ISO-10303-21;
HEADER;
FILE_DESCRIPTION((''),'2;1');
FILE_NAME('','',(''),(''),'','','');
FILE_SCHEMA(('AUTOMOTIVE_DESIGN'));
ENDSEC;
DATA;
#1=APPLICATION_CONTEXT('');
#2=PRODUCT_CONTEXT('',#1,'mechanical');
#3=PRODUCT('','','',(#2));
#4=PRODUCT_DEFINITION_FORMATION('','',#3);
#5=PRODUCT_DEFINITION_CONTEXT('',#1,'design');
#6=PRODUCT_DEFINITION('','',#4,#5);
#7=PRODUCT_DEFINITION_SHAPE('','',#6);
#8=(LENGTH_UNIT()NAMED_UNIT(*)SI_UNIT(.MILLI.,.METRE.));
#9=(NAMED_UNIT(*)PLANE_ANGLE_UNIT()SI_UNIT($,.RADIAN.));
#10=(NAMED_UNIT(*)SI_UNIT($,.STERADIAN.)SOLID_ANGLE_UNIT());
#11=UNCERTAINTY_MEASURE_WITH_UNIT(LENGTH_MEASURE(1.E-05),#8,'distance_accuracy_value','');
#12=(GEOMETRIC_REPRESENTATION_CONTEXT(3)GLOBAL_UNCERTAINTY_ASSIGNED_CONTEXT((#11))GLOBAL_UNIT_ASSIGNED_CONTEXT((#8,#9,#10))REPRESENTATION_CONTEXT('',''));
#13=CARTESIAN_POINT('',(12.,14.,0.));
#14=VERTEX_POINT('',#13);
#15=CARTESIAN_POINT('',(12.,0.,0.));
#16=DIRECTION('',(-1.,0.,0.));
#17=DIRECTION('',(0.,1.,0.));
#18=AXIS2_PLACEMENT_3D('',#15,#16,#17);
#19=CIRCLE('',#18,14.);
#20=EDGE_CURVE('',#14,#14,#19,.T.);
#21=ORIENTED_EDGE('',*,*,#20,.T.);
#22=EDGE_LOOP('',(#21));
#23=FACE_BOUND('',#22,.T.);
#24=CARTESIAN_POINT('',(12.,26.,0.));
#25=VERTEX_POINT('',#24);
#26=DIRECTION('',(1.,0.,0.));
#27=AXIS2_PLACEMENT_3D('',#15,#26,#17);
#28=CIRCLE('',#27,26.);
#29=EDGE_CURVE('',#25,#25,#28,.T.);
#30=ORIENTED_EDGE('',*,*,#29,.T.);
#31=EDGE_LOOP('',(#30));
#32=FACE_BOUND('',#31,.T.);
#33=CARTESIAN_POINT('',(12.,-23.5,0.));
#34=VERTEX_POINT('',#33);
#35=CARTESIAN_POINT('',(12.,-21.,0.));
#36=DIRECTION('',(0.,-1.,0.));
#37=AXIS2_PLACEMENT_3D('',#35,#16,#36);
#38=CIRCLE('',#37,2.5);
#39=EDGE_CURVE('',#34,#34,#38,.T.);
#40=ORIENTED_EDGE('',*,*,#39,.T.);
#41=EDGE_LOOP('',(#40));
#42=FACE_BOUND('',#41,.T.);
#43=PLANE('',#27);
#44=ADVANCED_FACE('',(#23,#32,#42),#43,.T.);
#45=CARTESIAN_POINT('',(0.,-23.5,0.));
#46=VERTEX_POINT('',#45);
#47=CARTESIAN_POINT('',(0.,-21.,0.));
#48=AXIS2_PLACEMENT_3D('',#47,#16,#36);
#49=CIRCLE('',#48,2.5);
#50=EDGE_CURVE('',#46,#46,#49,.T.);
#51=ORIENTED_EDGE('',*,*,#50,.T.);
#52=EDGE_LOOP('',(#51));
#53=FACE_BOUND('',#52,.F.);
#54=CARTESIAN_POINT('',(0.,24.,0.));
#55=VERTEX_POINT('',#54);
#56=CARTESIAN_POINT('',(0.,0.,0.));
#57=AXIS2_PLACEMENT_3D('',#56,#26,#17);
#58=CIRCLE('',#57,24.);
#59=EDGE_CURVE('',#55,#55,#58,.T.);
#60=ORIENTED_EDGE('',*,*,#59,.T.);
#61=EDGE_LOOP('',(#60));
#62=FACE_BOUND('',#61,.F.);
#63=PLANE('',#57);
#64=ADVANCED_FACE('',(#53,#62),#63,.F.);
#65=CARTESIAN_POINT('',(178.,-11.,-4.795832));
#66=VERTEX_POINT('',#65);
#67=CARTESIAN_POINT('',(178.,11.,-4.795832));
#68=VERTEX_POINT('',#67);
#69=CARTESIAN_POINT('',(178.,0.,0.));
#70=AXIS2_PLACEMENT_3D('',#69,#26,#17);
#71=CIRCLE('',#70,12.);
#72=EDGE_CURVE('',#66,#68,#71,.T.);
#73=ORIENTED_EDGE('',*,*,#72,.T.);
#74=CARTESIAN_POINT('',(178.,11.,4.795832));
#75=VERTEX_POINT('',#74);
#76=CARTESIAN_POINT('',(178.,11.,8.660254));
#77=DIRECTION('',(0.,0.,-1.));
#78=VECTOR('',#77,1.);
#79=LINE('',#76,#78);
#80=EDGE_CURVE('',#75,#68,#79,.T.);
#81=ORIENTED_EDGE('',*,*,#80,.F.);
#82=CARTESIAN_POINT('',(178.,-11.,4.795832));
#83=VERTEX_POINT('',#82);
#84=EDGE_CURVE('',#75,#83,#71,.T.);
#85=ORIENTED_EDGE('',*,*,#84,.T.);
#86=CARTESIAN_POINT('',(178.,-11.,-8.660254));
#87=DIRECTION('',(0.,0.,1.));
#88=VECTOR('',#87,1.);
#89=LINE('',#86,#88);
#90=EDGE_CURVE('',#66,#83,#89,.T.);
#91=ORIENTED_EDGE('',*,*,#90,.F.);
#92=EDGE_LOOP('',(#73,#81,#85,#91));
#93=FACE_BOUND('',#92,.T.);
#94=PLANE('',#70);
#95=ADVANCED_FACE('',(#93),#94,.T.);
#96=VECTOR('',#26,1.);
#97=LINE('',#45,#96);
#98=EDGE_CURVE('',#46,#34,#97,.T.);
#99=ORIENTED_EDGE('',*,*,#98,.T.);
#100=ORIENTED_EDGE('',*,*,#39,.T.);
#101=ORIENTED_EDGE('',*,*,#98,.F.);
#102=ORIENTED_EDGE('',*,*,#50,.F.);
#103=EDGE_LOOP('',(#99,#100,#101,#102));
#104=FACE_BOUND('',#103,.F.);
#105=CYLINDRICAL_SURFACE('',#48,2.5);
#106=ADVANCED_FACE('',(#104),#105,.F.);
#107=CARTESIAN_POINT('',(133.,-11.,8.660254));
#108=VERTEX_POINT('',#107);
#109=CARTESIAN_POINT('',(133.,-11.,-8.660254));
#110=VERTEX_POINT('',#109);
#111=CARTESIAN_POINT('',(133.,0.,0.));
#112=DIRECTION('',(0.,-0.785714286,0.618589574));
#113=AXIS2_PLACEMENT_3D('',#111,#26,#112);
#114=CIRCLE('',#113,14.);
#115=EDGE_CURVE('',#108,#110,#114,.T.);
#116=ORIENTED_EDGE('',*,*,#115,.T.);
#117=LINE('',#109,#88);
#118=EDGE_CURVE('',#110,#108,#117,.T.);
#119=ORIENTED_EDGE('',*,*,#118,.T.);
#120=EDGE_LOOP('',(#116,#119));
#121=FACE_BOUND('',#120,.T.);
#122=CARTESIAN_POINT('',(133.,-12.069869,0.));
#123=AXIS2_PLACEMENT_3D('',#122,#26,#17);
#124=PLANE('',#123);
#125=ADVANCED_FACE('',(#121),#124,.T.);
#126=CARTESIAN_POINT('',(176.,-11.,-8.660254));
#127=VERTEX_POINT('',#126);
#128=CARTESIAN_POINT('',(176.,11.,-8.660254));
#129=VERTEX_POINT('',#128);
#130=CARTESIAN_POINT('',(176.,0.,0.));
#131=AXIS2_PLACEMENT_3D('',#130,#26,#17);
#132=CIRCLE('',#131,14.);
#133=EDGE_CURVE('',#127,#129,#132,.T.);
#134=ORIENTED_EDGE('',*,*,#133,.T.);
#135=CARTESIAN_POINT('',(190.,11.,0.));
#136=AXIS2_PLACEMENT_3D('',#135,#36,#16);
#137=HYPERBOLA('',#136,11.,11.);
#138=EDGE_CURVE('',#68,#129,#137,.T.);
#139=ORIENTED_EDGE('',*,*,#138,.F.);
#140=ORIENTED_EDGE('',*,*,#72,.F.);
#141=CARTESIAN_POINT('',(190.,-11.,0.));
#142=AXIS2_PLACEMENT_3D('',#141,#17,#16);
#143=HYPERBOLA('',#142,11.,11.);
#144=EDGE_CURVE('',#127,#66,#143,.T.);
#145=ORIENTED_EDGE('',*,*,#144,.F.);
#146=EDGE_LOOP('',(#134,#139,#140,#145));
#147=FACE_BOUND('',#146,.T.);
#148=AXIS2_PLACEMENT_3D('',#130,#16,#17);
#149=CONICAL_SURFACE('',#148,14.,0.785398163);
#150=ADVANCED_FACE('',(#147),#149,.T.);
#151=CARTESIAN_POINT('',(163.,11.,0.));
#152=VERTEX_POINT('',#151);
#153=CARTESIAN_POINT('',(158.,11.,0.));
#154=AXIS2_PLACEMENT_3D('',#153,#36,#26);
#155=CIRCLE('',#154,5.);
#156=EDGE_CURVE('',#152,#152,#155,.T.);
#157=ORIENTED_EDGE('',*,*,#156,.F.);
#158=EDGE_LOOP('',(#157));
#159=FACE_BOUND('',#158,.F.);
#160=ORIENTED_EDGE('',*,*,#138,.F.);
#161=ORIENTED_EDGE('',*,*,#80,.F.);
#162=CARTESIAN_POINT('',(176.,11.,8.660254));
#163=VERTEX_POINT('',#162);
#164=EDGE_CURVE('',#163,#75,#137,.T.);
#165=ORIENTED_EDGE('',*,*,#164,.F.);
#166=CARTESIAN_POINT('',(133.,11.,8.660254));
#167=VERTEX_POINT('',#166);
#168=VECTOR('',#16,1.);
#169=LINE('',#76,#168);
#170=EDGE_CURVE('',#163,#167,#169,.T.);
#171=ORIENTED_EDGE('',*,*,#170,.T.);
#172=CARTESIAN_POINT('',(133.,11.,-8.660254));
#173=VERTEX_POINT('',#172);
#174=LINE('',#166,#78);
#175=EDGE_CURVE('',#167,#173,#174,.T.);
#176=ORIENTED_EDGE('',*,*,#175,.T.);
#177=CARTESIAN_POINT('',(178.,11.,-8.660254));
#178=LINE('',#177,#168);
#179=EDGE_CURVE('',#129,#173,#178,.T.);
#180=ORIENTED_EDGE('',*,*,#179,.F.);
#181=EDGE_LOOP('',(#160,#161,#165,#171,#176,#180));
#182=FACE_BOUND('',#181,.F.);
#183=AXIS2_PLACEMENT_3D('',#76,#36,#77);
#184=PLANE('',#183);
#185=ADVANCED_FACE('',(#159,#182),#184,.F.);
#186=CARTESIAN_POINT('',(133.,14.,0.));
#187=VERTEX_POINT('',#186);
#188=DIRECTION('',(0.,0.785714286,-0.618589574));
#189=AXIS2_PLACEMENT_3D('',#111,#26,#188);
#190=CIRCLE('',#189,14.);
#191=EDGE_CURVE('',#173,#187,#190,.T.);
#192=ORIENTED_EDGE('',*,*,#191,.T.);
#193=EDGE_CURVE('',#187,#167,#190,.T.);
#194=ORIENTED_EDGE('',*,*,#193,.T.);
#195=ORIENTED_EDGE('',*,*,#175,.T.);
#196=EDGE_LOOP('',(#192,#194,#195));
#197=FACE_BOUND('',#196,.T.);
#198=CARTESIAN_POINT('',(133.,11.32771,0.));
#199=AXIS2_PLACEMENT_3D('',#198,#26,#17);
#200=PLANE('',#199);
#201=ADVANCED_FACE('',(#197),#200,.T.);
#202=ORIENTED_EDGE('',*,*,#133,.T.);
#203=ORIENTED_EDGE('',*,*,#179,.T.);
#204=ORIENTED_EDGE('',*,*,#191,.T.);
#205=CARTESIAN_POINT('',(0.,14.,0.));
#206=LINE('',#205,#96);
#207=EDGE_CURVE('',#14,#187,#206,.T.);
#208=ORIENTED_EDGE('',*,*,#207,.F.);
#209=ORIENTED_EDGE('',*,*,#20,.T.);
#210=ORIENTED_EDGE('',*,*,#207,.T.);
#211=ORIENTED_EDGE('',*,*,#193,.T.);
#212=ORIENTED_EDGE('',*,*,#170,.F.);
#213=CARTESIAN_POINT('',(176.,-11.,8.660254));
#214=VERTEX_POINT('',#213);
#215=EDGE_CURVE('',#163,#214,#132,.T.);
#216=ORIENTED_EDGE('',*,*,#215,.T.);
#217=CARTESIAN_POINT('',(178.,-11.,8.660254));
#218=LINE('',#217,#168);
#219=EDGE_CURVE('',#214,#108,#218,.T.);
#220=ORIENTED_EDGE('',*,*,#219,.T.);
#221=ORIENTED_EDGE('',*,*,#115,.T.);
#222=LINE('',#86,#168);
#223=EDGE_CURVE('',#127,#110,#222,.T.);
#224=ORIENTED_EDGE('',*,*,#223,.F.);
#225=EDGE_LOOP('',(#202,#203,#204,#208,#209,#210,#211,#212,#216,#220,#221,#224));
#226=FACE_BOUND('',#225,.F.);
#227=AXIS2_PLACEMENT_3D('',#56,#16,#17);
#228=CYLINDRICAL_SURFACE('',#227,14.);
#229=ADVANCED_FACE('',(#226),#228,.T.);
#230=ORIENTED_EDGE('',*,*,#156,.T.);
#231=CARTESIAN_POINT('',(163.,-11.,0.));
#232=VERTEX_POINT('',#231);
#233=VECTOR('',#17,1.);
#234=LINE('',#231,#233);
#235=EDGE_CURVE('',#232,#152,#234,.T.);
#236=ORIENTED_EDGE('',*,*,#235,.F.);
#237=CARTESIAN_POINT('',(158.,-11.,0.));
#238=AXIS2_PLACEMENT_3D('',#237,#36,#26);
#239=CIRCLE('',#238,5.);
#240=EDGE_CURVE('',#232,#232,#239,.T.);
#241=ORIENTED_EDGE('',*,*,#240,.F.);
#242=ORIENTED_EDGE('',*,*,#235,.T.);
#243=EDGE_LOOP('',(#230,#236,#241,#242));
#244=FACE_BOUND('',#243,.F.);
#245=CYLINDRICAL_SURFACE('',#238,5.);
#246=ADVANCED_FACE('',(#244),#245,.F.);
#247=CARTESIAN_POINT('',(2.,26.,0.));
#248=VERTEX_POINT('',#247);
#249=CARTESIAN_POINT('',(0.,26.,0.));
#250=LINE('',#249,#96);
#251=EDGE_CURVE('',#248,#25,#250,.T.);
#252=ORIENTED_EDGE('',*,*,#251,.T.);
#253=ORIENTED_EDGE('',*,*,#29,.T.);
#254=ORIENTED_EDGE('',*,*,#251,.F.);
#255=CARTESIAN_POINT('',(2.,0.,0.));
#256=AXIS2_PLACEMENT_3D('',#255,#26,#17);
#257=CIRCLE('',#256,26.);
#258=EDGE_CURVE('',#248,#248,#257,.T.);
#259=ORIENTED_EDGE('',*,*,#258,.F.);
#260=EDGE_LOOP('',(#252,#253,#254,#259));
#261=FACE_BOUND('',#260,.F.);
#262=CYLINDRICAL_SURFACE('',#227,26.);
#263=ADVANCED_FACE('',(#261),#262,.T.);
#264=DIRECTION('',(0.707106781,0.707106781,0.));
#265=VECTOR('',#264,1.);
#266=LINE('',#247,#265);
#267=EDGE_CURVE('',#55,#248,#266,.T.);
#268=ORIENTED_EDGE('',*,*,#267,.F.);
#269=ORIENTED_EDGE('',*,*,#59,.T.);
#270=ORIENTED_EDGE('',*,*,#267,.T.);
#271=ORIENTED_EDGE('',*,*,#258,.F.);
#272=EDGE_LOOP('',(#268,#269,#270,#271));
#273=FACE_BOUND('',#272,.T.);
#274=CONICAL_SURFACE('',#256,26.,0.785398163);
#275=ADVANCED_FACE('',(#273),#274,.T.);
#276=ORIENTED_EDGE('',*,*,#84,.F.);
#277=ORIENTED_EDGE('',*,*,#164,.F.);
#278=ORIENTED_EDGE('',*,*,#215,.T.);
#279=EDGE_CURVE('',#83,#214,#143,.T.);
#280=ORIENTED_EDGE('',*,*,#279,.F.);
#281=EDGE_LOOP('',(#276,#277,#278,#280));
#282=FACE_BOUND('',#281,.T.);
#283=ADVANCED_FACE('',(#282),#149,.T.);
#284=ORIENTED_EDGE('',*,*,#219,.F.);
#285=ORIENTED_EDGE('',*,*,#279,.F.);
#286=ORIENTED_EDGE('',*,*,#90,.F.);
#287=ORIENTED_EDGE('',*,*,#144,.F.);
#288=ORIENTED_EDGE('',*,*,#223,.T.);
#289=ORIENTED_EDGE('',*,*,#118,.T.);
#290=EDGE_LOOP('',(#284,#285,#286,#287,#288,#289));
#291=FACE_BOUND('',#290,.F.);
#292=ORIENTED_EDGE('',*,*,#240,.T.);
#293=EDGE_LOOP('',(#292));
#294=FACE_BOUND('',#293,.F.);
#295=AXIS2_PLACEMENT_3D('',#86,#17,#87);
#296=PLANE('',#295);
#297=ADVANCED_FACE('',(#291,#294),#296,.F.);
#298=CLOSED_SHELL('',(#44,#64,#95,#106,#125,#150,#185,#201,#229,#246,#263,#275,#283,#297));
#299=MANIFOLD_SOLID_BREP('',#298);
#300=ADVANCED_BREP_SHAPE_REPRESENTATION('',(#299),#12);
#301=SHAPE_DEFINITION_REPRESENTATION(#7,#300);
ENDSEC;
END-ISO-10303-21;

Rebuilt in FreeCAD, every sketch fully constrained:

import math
import FreeCAD as App
import Part
import Sketcher
from FreeCAD import Vector
Q = App.Units.Quantity


def edges_at(feature, points):
    """Names of the edges that pass closest to the given points."""
    edges = feature.Shape.Edges
    near = lambda p: min(range(len(edges)), key=lambda i: edges[i].distToShape(Part.Vertex(*p))[0])
    return sorted({f"Edge{near(p) + 1}" for p in points})

doc = App.newDocument("Part")
body = doc.addObject("PartDesign::Body", "Body")

sketch1 = doc.addObject("Sketcher::SketchObject", "Sketch")
body.addObject(sketch1)
sketch1.AttachmentSupport = (doc.YZ_Plane, [""])
sketch1.MapMode = "FlatFace"
sketch1.addGeometry(Part.Circle(Vector(0, 0, 0), Vector(0, 0, 1), 26), False)
sketch1.addConstraint(Sketcher.Constraint("Coincident", 0, 3, -1, 1))
sketch1.addConstraint(Sketcher.Constraint("Diameter", 0, Q("52 mm")))
pad1 = doc.addObject("PartDesign::Pad", "Pad")
body.addObject(pad1)
pad1.Profile = sketch1
pad1.Length = 12

sketch2 = doc.addObject("Sketcher::SketchObject", "Sketch001")
body.addObject(sketch2)
sketch2.AttachmentSupport = (doc.YZ_Plane, [""])
sketch2.MapMode = "FlatFace"
sketch2.addGeometry(Part.Circle(Vector(0, 0, 0), Vector(0, 0, 1), 14), False)
sketch2.addConstraint(Sketcher.Constraint("Coincident", 0, 3, -1, 1))
sketch2.addConstraint(Sketcher.Constraint("Diameter", 0, Q("28 mm")))
pad2 = doc.addObject("PartDesign::Pad", "Pad001")
body.addObject(pad2)
pad2.Profile = sketch2
pad2.Length = 178
doc.recompute()

chamfer = doc.addObject("PartDesign::Chamfer", "Chamfer")
body.addObject(chamfer)
chamfer.Base = (pad2, edges_at(pad2, [(0, -26, 0), (178, -14, 0)]))
chamfer.Size = 2

sketch3 = doc.addObject("Sketcher::SketchObject", "Sketch002")
body.addObject(sketch3)
sketch3.AttachmentSupport = (doc.YZ_Plane, [""])
sketch3.MapMode = "FlatFace"
sketch3.addGeometry(Part.Circle(Vector(-21, 0, 0), Vector(0, 0, 1), 2.5), False)
sketch3.addConstraint(Sketcher.Constraint("PointOnObject", 0, 3, -1))
sketch3.addConstraint(Sketcher.Constraint("Diameter", 0, Q("5 mm")))
sketch3.addConstraint(Sketcher.Constraint("DistanceX", 0, 3, -1, 1, Q("21 mm")))
pocket1 = doc.addObject("PartDesign::Pocket", "Pocket")
body.addObject(pocket1)
pocket1.Profile = sketch3
pocket1.Type = "ThroughAll"
pocket1.Reversed = True

sketch4 = doc.addObject("Sketcher::SketchObject", "Sketch003")
body.addObject(sketch4)
sketch4.AttachmentSupport = (doc.YZ_Plane, [""])
sketch4.MapMode = "FlatFace"
sketch4.AttachmentOffset = App.Placement(Vector(0, 0, 178), App.Rotation())
sketch4.addGeometry(Part.ArcOfCircle(Part.Circle(Vector(0, 0, 0), Vector(0, 0, 1), 14), math.radians(142), math.radians(218)), False)
sketch4.addGeometry(Part.LineSegment(Vector(-11, -9, 0), Vector(-11, 9, 0)), False)
sketch4.addGeometry(Part.ArcOfCircle(Part.Circle(Vector(0, 0, 0), Vector(0, 0, 1), 14), math.radians(-38), math.radians(38)), False)
sketch4.addGeometry(Part.LineSegment(Vector(11, 9, 0), Vector(11, -9, 0)), False)
sketch4.addConstraint(Sketcher.Constraint("Coincident", 0, 1, 1, 2))
sketch4.addConstraint(Sketcher.Constraint("Coincident", 1, 1, 0, 2))
sketch4.addConstraint(Sketcher.Constraint("Coincident", 2, 1, 3, 2))
sketch4.addConstraint(Sketcher.Constraint("Coincident", 3, 1, 2, 2))
sketch4.addConstraint(Sketcher.Constraint("Vertical", 1))
sketch4.addConstraint(Sketcher.Constraint("Vertical", 3))
sketch4.addConstraint(Sketcher.Constraint("Coincident", 0, 3, -1, 1))
sketch4.addConstraint(Sketcher.Constraint("Coincident", 2, 3, -1, 1))
sketch4.addConstraint(Sketcher.Constraint("Equal", 0, 2))
sketch4.addConstraint(Sketcher.Constraint("Horizontal", 1, 1, 2, 1))
sketch4.addConstraint(Sketcher.Constraint("Radius", 0, Q("14 mm")))
sketch4.addConstraint(Sketcher.Constraint("DistanceX", 0, 1, -1, 1, Q("11 mm")))
pocket2 = doc.addObject("PartDesign::Pocket", "Pocket001")
body.addObject(pocket2)
pocket2.Profile = sketch4
pocket2.Length = 45

sketch5 = doc.addObject("Sketcher::SketchObject", "Sketch004")
body.addObject(sketch5)
sketch5.AttachmentSupport = (doc.XZ_Plane, [""])
sketch5.MapMode = "FlatFace"
sketch5.AttachmentOffset = App.Placement(Vector(0, 0, 11), App.Rotation())
sketch5.addGeometry(Part.Circle(Vector(158, 0, 0), Vector(0, 0, 1), 5), False)
sketch5.addConstraint(Sketcher.Constraint("PointOnObject", 0, 3, -1))
sketch5.addConstraint(Sketcher.Constraint("Diameter", 0, Q("10 mm")))
sketch5.addConstraint(Sketcher.Constraint("DistanceX", -1, 1, 0, 3, Q("158 mm")))
pocket3 = doc.addObject("PartDesign::Pocket", "Pocket002")
body.addObject(pocket3)
pocket3.Profile = sketch5
pocket3.Type = "ThroughAll"

doc.recompute()
